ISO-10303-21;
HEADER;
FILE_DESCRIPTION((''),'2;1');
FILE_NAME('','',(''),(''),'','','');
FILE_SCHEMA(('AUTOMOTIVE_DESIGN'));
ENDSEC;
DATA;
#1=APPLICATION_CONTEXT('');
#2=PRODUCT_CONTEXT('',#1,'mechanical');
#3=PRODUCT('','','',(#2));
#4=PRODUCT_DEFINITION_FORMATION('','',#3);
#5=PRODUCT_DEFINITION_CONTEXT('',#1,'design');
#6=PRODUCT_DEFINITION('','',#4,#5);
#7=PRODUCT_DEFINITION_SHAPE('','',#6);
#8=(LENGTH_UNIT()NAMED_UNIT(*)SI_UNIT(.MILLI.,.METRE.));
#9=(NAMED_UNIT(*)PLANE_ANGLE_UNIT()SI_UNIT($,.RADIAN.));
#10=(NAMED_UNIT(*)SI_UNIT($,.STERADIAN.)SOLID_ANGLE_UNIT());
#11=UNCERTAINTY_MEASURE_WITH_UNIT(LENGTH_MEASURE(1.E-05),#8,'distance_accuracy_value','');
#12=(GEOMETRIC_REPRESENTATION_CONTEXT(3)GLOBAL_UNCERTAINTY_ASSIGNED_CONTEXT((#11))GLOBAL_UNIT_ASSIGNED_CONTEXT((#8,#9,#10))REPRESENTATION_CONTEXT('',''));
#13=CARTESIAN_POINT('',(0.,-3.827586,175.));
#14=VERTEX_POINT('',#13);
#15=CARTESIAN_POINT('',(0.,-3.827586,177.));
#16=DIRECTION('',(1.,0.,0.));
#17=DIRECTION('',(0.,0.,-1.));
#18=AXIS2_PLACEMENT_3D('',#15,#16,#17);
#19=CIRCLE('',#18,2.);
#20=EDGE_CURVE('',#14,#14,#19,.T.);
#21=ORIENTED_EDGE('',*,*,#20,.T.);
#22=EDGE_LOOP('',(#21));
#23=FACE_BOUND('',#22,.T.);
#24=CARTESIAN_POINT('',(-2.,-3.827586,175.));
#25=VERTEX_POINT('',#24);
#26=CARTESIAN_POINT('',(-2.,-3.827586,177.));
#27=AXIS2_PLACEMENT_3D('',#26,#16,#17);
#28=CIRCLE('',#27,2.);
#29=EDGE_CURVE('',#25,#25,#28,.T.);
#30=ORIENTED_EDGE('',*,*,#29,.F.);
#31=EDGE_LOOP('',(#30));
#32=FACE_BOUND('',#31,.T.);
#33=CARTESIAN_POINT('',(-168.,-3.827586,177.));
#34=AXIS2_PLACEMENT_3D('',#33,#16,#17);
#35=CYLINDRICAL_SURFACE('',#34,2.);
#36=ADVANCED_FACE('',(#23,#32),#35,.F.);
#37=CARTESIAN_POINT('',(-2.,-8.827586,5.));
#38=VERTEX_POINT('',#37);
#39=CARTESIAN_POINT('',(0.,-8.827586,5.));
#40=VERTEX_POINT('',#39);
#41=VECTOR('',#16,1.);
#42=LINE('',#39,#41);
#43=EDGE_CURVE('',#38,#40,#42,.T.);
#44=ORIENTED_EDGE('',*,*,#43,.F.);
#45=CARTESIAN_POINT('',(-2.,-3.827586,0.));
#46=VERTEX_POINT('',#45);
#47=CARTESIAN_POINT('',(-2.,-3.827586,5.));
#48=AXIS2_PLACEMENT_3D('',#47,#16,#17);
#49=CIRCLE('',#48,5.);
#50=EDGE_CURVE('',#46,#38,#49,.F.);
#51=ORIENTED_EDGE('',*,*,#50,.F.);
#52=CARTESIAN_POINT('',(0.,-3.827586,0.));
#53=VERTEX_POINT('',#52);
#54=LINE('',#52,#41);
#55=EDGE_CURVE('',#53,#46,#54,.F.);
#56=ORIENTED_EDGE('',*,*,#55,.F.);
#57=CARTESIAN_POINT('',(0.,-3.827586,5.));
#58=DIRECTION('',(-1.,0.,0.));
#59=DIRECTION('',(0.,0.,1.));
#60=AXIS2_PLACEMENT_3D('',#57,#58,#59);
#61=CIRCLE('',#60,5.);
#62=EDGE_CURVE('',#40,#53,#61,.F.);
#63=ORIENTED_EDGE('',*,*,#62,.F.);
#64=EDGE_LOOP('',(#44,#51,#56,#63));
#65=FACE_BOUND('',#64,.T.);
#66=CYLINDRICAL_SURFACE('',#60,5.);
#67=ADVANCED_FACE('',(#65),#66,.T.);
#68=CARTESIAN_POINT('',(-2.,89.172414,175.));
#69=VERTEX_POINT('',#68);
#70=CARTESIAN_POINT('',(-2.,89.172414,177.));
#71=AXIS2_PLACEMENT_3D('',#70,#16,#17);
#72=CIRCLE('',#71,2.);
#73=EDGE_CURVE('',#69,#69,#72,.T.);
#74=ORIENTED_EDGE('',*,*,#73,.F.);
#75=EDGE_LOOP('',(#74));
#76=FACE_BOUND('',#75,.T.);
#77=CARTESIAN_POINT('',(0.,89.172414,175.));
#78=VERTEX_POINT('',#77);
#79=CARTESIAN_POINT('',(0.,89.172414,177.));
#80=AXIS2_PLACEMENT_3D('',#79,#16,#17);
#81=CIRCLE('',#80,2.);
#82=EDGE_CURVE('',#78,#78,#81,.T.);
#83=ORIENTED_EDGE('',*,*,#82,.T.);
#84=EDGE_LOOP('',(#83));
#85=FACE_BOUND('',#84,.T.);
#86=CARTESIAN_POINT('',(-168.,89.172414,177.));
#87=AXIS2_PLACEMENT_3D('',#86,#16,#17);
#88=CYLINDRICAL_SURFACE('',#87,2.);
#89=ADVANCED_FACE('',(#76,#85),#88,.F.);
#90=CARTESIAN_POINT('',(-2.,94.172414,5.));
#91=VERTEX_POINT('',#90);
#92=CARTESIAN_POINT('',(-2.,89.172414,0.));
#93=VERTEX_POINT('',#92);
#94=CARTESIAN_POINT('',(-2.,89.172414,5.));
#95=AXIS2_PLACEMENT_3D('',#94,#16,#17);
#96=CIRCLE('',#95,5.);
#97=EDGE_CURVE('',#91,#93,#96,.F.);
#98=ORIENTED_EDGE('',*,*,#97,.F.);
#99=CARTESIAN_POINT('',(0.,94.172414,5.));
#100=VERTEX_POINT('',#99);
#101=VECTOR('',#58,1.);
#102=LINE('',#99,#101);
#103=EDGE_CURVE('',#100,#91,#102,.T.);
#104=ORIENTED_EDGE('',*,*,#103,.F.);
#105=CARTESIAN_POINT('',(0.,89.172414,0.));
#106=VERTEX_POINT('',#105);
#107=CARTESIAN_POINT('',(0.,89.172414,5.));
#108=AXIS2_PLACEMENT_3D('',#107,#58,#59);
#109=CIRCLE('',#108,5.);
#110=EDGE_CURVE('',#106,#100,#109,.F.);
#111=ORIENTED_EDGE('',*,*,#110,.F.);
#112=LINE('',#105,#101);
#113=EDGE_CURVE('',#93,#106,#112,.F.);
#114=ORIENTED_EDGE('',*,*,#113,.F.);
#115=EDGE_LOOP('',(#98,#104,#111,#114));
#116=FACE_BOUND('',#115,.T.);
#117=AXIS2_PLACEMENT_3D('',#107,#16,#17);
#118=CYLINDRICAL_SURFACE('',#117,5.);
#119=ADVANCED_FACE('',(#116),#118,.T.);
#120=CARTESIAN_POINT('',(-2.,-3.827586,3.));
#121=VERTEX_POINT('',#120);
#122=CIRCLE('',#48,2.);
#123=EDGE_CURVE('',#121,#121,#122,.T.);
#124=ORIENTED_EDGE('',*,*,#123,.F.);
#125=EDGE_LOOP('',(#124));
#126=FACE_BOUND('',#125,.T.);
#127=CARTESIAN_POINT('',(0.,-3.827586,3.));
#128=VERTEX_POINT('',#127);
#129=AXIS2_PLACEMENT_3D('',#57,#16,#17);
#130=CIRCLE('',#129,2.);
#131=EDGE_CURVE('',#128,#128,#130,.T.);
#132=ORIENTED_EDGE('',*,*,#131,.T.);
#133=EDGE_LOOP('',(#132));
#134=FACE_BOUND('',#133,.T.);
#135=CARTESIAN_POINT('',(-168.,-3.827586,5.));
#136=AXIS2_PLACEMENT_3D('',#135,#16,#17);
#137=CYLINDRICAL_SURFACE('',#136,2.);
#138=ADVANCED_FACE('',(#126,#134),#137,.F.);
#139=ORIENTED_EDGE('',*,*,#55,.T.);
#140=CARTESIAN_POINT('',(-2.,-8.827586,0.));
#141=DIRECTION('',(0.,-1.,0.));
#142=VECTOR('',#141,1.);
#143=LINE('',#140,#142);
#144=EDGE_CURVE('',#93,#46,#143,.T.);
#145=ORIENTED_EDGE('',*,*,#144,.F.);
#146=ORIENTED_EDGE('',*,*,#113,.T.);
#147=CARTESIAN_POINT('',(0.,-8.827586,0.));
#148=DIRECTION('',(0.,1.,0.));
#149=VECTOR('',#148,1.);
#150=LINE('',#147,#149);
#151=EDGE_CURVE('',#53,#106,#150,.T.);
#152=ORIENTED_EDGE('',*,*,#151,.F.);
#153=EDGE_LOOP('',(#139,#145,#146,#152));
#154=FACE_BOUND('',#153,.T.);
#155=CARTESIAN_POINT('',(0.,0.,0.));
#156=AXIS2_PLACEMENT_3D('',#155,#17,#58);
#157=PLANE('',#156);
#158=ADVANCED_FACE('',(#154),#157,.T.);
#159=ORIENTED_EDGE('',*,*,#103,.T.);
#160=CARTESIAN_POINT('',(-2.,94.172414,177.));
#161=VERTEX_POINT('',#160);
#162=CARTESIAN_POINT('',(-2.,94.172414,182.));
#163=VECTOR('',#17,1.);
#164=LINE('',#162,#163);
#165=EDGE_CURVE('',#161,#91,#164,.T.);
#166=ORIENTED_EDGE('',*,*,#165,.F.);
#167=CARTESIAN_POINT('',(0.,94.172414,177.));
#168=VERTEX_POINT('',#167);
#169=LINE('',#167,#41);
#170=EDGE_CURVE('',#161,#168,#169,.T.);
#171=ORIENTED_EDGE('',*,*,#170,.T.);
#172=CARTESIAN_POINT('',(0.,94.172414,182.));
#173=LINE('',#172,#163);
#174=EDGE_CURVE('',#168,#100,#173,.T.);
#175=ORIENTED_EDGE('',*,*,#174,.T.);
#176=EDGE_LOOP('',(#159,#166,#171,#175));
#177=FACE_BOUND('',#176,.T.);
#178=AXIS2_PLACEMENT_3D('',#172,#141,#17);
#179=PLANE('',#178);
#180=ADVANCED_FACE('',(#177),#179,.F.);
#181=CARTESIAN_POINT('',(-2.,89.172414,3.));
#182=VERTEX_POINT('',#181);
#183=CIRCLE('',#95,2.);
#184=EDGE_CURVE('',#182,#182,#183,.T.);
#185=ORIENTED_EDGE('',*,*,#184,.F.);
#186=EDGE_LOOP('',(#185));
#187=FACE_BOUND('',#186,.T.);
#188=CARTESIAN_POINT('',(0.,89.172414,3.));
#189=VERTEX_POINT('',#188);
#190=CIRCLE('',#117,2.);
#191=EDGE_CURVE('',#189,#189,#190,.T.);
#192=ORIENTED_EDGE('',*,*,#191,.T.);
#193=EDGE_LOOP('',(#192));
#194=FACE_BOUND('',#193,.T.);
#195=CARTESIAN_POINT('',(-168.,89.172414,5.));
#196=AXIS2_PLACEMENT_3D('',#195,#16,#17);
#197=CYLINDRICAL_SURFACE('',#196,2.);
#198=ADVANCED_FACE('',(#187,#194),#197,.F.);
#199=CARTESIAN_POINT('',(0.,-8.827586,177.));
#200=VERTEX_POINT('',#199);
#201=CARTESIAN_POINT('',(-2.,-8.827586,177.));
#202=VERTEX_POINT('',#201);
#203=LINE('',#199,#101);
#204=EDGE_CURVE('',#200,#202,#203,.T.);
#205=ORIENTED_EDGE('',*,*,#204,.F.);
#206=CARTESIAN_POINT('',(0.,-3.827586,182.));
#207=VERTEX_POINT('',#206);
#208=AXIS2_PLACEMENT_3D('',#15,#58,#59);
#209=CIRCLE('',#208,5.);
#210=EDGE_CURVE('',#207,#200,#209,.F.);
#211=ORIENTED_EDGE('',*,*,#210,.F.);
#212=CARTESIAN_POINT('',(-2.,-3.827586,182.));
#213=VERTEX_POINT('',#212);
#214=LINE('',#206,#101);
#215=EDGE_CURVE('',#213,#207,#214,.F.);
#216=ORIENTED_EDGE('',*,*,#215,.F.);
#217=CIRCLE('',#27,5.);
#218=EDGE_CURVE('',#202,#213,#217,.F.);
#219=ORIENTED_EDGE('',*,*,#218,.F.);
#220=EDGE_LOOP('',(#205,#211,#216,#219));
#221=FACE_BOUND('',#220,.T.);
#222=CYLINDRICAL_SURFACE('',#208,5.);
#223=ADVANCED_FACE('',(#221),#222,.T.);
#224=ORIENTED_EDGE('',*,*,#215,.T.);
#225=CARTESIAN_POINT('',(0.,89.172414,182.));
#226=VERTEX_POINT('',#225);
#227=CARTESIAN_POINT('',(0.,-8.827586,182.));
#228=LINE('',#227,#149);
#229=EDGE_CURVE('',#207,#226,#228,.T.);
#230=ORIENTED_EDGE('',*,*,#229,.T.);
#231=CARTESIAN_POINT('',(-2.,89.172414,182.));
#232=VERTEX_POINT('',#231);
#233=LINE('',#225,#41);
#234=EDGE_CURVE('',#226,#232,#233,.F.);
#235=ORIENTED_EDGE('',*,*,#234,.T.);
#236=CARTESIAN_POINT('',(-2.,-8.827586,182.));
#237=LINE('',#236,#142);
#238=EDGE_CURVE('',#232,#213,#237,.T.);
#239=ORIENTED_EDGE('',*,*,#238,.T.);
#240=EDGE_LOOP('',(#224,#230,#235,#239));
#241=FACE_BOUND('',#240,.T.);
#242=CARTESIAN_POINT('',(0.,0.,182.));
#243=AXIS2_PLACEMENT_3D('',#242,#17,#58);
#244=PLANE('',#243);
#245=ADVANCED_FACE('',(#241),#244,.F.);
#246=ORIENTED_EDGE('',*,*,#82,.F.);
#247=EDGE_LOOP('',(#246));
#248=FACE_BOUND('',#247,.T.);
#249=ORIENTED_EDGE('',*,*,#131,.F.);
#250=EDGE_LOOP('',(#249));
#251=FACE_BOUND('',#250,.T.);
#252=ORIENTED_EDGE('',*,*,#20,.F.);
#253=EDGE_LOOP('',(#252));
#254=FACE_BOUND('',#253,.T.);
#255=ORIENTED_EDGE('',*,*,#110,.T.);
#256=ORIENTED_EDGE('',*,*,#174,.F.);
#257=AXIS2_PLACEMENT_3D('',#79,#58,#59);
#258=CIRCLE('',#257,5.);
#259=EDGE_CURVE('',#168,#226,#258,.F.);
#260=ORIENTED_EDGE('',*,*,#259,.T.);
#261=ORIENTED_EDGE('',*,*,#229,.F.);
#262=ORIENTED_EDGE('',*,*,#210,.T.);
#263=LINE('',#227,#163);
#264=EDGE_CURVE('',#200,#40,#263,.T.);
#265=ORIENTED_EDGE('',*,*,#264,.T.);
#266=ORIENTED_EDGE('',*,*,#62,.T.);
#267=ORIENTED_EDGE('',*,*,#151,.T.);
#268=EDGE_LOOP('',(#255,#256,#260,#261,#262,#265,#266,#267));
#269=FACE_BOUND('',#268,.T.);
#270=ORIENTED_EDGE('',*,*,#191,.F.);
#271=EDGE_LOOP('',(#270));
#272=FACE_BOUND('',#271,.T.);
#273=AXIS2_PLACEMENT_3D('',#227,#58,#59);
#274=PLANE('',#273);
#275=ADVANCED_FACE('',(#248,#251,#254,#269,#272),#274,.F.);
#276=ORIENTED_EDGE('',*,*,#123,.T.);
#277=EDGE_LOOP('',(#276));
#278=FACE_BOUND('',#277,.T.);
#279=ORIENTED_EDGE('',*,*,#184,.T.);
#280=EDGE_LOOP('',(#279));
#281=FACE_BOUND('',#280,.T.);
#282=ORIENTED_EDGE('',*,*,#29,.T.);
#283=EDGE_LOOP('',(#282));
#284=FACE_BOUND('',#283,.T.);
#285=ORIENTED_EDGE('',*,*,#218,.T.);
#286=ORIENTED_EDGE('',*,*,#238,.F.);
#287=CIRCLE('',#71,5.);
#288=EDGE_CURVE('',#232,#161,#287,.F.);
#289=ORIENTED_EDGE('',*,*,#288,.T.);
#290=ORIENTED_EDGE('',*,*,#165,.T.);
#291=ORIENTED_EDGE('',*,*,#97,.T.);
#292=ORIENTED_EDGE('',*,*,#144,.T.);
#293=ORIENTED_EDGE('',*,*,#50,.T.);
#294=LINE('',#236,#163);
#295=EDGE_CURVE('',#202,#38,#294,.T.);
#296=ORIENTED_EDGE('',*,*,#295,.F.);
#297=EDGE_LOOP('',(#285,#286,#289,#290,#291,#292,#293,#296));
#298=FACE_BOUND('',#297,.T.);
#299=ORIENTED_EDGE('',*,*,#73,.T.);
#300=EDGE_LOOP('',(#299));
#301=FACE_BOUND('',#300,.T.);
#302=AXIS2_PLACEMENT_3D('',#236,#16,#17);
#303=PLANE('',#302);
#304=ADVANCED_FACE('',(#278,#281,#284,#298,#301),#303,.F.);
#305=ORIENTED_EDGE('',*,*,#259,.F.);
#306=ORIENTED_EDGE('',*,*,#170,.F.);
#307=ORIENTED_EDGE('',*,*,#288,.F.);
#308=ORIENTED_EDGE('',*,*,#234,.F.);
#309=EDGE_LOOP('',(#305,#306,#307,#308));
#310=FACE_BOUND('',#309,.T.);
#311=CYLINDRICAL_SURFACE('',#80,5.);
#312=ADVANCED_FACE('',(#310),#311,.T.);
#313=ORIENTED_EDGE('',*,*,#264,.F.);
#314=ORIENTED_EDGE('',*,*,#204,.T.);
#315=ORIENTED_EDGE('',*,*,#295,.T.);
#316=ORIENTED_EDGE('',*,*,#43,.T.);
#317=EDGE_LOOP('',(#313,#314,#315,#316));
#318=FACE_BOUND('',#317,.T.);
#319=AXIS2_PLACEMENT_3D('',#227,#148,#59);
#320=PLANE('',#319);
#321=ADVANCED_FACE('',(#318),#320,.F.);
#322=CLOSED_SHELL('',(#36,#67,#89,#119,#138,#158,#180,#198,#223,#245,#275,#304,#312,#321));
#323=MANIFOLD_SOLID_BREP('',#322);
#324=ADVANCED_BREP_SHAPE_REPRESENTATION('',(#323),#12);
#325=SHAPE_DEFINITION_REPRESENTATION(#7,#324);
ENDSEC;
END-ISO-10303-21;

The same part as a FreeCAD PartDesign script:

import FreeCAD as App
import Part
import Sketcher


def edges_at(feature, points):
    """Names of the edges that pass closest to the given points."""
    edges = feature.Shape.Edges
    near = lambda p: min(range(len(edges)), key=lambda i: edges[i].distToShape(Part.Vertex(*p))[0])
    return sorted({f"Edge{near(p) + 1}" for p in points})

doc = App.newDocument("Part")
body = doc.addObject("PartDesign::Body", "Body")

# Sketch on XY plane
sketch1 = body.newObject("Sketcher::SketchObject", "Sketch")
sketch1.AttachmentSupport = (doc.getObject("XY_Plane"), [""])
sketch1.MapMode = "FlatFace"
sketch1.addGeometry(Part.LineSegment(App.Vector(-2, -8.8, 0), App.Vector(0, -8.8, 0)), False)
sketch1.addGeometry(Part.LineSegment(App.Vector(0, -8.8, 0), App.Vector(0, 94.2, 0)), False)
sketch1.addGeometry(Part.LineSegment(App.Vector(0, 94.2, 0), App.Vector(-2, 94.2, 0)), False)
sketch1.addGeometry(Part.LineSegment(App.Vector(-2, 94.2, 0), App.Vector(-2, -8.8, 0)), False)
sketch1.addConstraint(Sketcher.Constraint("Coincident", 0, 2, 1, 1))
sketch1.addConstraint(Sketcher.Constraint("Coincident", 1, 2, 2, 1))
sketch1.addConstraint(Sketcher.Constraint("Coincident", 2, 2, 3, 1))
sketch1.addConstraint(Sketcher.Constraint("Coincident", 3, 2, 0, 1))
sketch1.addConstraint(Sketcher.Constraint("Horizontal", 0))
sketch1.addConstraint(Sketcher.Constraint("Vertical", 1))
sketch1.addConstraint(Sketcher.Constraint("Horizontal", 2))
sketch1.addConstraint(Sketcher.Constraint("Vertical", 3))
sketch1.addConstraint(Sketcher.Constraint("PointOnObject", 0, 2, -2))
sketch1.addConstraint(Sketcher.Constraint("DistanceX", 0, 1, 0, 2, 2.0))
sketch1.addConstraint(Sketcher.Constraint("DistanceY", 1, 1, 1, 2, 103.0))
sketch1.addConstraint(Sketcher.Constraint("DistanceY", 0, 2, -1, 1, 8.827586))
pad1 = body.newObject("PartDesign::Pad", "Pad")
pad1.Profile = sketch1
pad1.Length = 182

# Sketch on YZ plane
sketch2 = body.newObject("Sketcher::SketchObject", "Sketch001")
sketch2.AttachmentSupport = (doc.getObject("YZ_Plane"), [""])
sketch2.MapMode = "FlatFace"
sketch2.addGeometry(Part.Circle(App.Vector(-3.8, 177, 0), App.Vector(0, 0, 1), 2), False)
sketch2.addGeometry(Part.Circle(App.Vector(89.2, 177, 0), App.Vector(0, 0, 1), 2), False)
sketch2.addGeometry(Part.Circle(App.Vector(89.2, 5, 0), App.Vector(0, 0, 1), 2), False)
sketch2.addGeometry(Part.Circle(App.Vector(-3.8, 5, 0), App.Vector(0, 0, 1), 2), False)
sketch2.addConstraint(Sketcher.Constraint("Equal", 0, 1))
sketch2.addConstraint(Sketcher.Constraint("Equal", 1, 2))
sketch2.addConstraint(Sketcher.Constraint("Equal", 2, 3))
sketch2.addConstraint(Sketcher.Constraint("Horizontal", 0, 3, 1, 3))
sketch2.addConstraint(Sketcher.Constraint("Horizontal", 2, 3, 3, 3))
sketch2.addConstraint(Sketcher.Constraint("Vertical", 1, 3, 2, 3))
sketch2.addConstraint(Sketcher.Constraint("Vertical", 0, 3, 3, 3))
sketch2.addConstraint(Sketcher.Constraint("Diameter", 0, 4.0))
sketch2.addConstraint(Sketcher.Constraint("DistanceY", -1, 1, 0, 3, 177.0))
sketch2.addConstraint(Sketcher.Constraint("DistanceY", -1, 1, 2, 3, 5.0))
sketch2.addConstraint(Sketcher.Constraint("DistanceX", 0, 3, 1, 3, 93.0))
sketch2.addConstraint(Sketcher.Constraint("DistanceX", 0, 3, -1, 1, 3.827586))
pocket1 = body.newObject("PartDesign::Pocket", "Pocket")
pocket1.Profile = sketch2
pocket1.Length = 168
doc.recompute()

fillet = body.newObject("PartDesign::Fillet", "Fillet")
fillet.Base = (pocket1, edges_at(pocket1, [(-1, -8.828, 182)]))
fillet.Radius = 5
doc.recompute()

fillet2 = body.newObject("PartDesign::Fillet", "Fillet001")
fillet2.Base = (fillet, edges_at(fillet, [(-1, 94.172, 182)]))
fillet2.Radius = 5
doc.recompute()

fillet3 = body.newObject("PartDesign::Fillet", "Fillet002")
fillet3.Base = (fillet2, edges_at(fillet2, [(-1, 94.172, 0)]))
fillet3.Radius = 5
doc.recompute()

fillet4 = body.newObject("PartDesign::Fillet", "Fillet003")
fillet4.Base = (fillet3, edges_at(fillet3, [(-1, -8.828, 0)]))
fillet4.Radius = 5

doc.recompute()
